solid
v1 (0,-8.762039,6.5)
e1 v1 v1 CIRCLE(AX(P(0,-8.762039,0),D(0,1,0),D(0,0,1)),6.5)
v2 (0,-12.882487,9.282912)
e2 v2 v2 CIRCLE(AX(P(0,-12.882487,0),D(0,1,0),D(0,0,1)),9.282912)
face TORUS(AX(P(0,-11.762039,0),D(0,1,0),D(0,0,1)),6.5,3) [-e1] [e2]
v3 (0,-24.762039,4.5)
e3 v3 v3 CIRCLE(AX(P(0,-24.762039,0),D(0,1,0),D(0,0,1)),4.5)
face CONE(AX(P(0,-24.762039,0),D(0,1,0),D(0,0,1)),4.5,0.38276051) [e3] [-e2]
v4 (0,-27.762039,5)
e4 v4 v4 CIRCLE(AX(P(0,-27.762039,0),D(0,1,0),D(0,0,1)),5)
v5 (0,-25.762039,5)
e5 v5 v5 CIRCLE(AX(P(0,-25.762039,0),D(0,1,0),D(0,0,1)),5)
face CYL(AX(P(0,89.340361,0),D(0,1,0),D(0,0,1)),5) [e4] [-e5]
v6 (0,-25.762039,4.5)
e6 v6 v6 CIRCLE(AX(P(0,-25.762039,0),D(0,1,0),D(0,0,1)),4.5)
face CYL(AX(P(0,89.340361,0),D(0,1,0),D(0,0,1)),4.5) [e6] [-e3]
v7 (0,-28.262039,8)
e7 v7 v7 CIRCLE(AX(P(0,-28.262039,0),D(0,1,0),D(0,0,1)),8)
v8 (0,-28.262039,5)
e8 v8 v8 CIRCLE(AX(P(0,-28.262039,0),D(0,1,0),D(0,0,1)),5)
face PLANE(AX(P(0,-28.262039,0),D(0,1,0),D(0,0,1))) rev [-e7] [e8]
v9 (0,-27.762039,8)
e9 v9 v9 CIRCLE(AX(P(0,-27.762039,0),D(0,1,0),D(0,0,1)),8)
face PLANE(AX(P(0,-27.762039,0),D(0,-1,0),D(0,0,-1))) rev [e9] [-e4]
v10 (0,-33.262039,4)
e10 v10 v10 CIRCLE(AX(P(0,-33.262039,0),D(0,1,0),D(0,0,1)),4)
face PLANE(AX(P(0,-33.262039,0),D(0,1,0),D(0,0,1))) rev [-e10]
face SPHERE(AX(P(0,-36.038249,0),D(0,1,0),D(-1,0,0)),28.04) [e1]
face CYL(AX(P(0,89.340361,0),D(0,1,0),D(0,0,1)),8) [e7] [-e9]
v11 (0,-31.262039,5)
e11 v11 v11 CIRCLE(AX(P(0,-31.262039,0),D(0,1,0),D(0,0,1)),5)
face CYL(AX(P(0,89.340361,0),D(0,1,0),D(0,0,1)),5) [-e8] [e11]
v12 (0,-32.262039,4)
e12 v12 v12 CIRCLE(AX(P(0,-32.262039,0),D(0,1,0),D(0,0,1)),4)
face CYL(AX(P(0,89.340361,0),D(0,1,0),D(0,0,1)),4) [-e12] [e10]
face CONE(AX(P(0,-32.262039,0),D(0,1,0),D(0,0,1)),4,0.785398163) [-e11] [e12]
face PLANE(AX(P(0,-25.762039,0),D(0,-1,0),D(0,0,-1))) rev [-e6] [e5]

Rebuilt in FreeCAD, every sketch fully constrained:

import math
import FreeCAD as App
import Part
import Sketcher
from FreeCAD import Vector
Q = App.Units.Quantity

doc = App.newDocument("Part")
body = doc.addObject("PartDesign::Body", "Body")

# Sketch on XY plane
sketch1 = body.newObject("Sketcher::SketchObject", "Sketch")
sketch1.AttachmentSupport = (doc.getObject("XY_Plane"), [""])
sketch1.MapMode = "FlatFace"
sketch1.addGeometry([
    Part.LineSegment(Vector(0, -33.3, 0), Vector(0, -8, 0)),  # 0
    Part.ArcOfCircle(Part.Circle(Vector(0, -36, 0), Vector(0, 0, 1), 28), math.radians(90), math.radians(103.4)),  # 1
    Part.ArcOfCircle(Part.Circle(Vector(-6.5, -11.8, 0), Vector(0, 0, 1), 3), math.radians(90), math.radians(202)),  # 2
    Part.LineSegment(Vector(-9.3, -12.9, 0), Vector(-4.5, -24.8, 0)),  # 3
    Part.LineSegment(Vector(-4.5, -24.8, 0), Vector(-4.5, -25.8, 0)),  # 4
    Part.LineSegment(Vector(-4.5, -25.8, 0), Vector(-5, -25.8, 0)),  # 5
    Part.LineSegment(Vector(-5, -25.8, 0), Vector(-5, -27.8, 0)),  # 6
    Part.LineSegment(Vector(-5, -27.8, 0), Vector(-8, -27.8, 0)),  # 7
    Part.LineSegment(Vector(-8, -27.8, 0), Vector(-8, -28.3, 0)),  # 8
    Part.LineSegment(Vector(-8, -28.3, 0), Vector(-5, -28.3, 0)),  # 9
    Part.LineSegment(Vector(-5, -28.3, 0), Vector(-5, -31.3, 0)),  # 10
    Part.LineSegment(Vector(-5, -31.3, 0), Vector(-4, -32.3, 0)),  # 11
    Part.LineSegment(Vector(-4, -32.3, 0), Vector(-4, -33.3, 0)),  # 12
    Part.LineSegment(Vector(-4, -33.3, 0), Vector(0, -33.3, 0)),  # 13
], False)
sketch1.addConstraint([
    Sketcher.Constraint("Coincident", 0, 2, 1, 1),
    Sketcher.Constraint("Coincident", 1, 2, 2, 1),
    Sketcher.Constraint("Tangent", 2, 2, 3, 1),
    Sketcher.Constraint("Coincident", 3, 2, 4, 1),
    Sketcher.Constraint("Coincident", 4, 2, 5, 1),
    Sketcher.Constraint("Coincident", 5, 2, 6, 1),
    Sketcher.Constraint("Coincident", 6, 2, 7, 1),
    Sketcher.Constraint("Coincident", 7, 2, 8, 1),
    Sketcher.Constraint("Coincident", 8, 2, 9, 1),
    Sketcher.Constraint("Coincident", 9, 2, 10, 1),
    Sketcher.Constraint("Coincident", 10, 2, 11, 1),
    Sketcher.Constraint("Coincident", 11, 2, 12, 1),
    Sketcher.Constraint("Coincident", 12, 2, 13, 1),
    Sketcher.Constraint("Coincident", 13, 2, 0, 1),
    Sketcher.Constraint("Vertical", 0),
    Sketcher.Constraint("Vertical", 4),
    Sketcher.Constraint("Horizontal", 5),
    Sketcher.Constraint("Vertical", 6),
    Sketcher.Constraint("Horizontal", 7),
    Sketcher.Constraint("Vertical", 8),
    Sketcher.Constraint("Horizontal", 9),
    Sketcher.Constraint("Vertical", 10),
    Sketcher.Constraint("Vertical", 12),
    Sketcher.Constraint("Horizontal", 13),
    Sketcher.Constraint("PointOnObject", 1, 3, -2),
    Sketcher.Constraint("PointOnObject", 0, 2, -2),
    Sketcher.Constraint("Vertical", 2, 3, 1, 2),
    Sketcher.Constraint("Vertical", 6, 2, 9, 2),
    Sketcher.Constraint("Equal", 5, 8),
    Sketcher.Constraint("Equal", 9, 10),
    Sketcher.Constraint("Equal", 4, 12),
    Sketcher.Constraint("Radius", 2, 3.0),
    Sketcher.Constraint("DistanceX", 7, 2, 7, 1, 3.0),
    Sketcher.Constraint("DistanceX", 13, 1, 13, 2, 4.0),
    Sketcher.Constraint("DistanceY", 4, 2, 4, 1, 1.0),
    Sketcher.Constraint("DistanceY", 6, 2, 6, 1, 2.0),
    Sketcher.Constraint("Angle", 11, Q("-45 deg")),
    Sketcher.Constraint("Radius", 1, 28.04),
    Sketcher.Constraint("DistanceX", 5, 2, 5, 1, 0.5),
    Sketcher.Constraint("DistanceX", 5, 2, -1, 1, 5.0),
    Sketcher.Constraint("DistanceX", 2, 3, 3, 2, 2.0),
    Sketcher.Constraint("DistanceY", 3, 2, 2, 3, 13.0),
    Sketcher.Constraint("DistanceY", 1, 3, -1, 1, 36.038249),
])
revolution = body.newObject("PartDesign::Revolution", "Revolution")
revolution.Profile = sketch1
revolution.ReferenceAxis = (sketch1, ["V_Axis"])
revolution.Angle = 360

doc.recompute()
